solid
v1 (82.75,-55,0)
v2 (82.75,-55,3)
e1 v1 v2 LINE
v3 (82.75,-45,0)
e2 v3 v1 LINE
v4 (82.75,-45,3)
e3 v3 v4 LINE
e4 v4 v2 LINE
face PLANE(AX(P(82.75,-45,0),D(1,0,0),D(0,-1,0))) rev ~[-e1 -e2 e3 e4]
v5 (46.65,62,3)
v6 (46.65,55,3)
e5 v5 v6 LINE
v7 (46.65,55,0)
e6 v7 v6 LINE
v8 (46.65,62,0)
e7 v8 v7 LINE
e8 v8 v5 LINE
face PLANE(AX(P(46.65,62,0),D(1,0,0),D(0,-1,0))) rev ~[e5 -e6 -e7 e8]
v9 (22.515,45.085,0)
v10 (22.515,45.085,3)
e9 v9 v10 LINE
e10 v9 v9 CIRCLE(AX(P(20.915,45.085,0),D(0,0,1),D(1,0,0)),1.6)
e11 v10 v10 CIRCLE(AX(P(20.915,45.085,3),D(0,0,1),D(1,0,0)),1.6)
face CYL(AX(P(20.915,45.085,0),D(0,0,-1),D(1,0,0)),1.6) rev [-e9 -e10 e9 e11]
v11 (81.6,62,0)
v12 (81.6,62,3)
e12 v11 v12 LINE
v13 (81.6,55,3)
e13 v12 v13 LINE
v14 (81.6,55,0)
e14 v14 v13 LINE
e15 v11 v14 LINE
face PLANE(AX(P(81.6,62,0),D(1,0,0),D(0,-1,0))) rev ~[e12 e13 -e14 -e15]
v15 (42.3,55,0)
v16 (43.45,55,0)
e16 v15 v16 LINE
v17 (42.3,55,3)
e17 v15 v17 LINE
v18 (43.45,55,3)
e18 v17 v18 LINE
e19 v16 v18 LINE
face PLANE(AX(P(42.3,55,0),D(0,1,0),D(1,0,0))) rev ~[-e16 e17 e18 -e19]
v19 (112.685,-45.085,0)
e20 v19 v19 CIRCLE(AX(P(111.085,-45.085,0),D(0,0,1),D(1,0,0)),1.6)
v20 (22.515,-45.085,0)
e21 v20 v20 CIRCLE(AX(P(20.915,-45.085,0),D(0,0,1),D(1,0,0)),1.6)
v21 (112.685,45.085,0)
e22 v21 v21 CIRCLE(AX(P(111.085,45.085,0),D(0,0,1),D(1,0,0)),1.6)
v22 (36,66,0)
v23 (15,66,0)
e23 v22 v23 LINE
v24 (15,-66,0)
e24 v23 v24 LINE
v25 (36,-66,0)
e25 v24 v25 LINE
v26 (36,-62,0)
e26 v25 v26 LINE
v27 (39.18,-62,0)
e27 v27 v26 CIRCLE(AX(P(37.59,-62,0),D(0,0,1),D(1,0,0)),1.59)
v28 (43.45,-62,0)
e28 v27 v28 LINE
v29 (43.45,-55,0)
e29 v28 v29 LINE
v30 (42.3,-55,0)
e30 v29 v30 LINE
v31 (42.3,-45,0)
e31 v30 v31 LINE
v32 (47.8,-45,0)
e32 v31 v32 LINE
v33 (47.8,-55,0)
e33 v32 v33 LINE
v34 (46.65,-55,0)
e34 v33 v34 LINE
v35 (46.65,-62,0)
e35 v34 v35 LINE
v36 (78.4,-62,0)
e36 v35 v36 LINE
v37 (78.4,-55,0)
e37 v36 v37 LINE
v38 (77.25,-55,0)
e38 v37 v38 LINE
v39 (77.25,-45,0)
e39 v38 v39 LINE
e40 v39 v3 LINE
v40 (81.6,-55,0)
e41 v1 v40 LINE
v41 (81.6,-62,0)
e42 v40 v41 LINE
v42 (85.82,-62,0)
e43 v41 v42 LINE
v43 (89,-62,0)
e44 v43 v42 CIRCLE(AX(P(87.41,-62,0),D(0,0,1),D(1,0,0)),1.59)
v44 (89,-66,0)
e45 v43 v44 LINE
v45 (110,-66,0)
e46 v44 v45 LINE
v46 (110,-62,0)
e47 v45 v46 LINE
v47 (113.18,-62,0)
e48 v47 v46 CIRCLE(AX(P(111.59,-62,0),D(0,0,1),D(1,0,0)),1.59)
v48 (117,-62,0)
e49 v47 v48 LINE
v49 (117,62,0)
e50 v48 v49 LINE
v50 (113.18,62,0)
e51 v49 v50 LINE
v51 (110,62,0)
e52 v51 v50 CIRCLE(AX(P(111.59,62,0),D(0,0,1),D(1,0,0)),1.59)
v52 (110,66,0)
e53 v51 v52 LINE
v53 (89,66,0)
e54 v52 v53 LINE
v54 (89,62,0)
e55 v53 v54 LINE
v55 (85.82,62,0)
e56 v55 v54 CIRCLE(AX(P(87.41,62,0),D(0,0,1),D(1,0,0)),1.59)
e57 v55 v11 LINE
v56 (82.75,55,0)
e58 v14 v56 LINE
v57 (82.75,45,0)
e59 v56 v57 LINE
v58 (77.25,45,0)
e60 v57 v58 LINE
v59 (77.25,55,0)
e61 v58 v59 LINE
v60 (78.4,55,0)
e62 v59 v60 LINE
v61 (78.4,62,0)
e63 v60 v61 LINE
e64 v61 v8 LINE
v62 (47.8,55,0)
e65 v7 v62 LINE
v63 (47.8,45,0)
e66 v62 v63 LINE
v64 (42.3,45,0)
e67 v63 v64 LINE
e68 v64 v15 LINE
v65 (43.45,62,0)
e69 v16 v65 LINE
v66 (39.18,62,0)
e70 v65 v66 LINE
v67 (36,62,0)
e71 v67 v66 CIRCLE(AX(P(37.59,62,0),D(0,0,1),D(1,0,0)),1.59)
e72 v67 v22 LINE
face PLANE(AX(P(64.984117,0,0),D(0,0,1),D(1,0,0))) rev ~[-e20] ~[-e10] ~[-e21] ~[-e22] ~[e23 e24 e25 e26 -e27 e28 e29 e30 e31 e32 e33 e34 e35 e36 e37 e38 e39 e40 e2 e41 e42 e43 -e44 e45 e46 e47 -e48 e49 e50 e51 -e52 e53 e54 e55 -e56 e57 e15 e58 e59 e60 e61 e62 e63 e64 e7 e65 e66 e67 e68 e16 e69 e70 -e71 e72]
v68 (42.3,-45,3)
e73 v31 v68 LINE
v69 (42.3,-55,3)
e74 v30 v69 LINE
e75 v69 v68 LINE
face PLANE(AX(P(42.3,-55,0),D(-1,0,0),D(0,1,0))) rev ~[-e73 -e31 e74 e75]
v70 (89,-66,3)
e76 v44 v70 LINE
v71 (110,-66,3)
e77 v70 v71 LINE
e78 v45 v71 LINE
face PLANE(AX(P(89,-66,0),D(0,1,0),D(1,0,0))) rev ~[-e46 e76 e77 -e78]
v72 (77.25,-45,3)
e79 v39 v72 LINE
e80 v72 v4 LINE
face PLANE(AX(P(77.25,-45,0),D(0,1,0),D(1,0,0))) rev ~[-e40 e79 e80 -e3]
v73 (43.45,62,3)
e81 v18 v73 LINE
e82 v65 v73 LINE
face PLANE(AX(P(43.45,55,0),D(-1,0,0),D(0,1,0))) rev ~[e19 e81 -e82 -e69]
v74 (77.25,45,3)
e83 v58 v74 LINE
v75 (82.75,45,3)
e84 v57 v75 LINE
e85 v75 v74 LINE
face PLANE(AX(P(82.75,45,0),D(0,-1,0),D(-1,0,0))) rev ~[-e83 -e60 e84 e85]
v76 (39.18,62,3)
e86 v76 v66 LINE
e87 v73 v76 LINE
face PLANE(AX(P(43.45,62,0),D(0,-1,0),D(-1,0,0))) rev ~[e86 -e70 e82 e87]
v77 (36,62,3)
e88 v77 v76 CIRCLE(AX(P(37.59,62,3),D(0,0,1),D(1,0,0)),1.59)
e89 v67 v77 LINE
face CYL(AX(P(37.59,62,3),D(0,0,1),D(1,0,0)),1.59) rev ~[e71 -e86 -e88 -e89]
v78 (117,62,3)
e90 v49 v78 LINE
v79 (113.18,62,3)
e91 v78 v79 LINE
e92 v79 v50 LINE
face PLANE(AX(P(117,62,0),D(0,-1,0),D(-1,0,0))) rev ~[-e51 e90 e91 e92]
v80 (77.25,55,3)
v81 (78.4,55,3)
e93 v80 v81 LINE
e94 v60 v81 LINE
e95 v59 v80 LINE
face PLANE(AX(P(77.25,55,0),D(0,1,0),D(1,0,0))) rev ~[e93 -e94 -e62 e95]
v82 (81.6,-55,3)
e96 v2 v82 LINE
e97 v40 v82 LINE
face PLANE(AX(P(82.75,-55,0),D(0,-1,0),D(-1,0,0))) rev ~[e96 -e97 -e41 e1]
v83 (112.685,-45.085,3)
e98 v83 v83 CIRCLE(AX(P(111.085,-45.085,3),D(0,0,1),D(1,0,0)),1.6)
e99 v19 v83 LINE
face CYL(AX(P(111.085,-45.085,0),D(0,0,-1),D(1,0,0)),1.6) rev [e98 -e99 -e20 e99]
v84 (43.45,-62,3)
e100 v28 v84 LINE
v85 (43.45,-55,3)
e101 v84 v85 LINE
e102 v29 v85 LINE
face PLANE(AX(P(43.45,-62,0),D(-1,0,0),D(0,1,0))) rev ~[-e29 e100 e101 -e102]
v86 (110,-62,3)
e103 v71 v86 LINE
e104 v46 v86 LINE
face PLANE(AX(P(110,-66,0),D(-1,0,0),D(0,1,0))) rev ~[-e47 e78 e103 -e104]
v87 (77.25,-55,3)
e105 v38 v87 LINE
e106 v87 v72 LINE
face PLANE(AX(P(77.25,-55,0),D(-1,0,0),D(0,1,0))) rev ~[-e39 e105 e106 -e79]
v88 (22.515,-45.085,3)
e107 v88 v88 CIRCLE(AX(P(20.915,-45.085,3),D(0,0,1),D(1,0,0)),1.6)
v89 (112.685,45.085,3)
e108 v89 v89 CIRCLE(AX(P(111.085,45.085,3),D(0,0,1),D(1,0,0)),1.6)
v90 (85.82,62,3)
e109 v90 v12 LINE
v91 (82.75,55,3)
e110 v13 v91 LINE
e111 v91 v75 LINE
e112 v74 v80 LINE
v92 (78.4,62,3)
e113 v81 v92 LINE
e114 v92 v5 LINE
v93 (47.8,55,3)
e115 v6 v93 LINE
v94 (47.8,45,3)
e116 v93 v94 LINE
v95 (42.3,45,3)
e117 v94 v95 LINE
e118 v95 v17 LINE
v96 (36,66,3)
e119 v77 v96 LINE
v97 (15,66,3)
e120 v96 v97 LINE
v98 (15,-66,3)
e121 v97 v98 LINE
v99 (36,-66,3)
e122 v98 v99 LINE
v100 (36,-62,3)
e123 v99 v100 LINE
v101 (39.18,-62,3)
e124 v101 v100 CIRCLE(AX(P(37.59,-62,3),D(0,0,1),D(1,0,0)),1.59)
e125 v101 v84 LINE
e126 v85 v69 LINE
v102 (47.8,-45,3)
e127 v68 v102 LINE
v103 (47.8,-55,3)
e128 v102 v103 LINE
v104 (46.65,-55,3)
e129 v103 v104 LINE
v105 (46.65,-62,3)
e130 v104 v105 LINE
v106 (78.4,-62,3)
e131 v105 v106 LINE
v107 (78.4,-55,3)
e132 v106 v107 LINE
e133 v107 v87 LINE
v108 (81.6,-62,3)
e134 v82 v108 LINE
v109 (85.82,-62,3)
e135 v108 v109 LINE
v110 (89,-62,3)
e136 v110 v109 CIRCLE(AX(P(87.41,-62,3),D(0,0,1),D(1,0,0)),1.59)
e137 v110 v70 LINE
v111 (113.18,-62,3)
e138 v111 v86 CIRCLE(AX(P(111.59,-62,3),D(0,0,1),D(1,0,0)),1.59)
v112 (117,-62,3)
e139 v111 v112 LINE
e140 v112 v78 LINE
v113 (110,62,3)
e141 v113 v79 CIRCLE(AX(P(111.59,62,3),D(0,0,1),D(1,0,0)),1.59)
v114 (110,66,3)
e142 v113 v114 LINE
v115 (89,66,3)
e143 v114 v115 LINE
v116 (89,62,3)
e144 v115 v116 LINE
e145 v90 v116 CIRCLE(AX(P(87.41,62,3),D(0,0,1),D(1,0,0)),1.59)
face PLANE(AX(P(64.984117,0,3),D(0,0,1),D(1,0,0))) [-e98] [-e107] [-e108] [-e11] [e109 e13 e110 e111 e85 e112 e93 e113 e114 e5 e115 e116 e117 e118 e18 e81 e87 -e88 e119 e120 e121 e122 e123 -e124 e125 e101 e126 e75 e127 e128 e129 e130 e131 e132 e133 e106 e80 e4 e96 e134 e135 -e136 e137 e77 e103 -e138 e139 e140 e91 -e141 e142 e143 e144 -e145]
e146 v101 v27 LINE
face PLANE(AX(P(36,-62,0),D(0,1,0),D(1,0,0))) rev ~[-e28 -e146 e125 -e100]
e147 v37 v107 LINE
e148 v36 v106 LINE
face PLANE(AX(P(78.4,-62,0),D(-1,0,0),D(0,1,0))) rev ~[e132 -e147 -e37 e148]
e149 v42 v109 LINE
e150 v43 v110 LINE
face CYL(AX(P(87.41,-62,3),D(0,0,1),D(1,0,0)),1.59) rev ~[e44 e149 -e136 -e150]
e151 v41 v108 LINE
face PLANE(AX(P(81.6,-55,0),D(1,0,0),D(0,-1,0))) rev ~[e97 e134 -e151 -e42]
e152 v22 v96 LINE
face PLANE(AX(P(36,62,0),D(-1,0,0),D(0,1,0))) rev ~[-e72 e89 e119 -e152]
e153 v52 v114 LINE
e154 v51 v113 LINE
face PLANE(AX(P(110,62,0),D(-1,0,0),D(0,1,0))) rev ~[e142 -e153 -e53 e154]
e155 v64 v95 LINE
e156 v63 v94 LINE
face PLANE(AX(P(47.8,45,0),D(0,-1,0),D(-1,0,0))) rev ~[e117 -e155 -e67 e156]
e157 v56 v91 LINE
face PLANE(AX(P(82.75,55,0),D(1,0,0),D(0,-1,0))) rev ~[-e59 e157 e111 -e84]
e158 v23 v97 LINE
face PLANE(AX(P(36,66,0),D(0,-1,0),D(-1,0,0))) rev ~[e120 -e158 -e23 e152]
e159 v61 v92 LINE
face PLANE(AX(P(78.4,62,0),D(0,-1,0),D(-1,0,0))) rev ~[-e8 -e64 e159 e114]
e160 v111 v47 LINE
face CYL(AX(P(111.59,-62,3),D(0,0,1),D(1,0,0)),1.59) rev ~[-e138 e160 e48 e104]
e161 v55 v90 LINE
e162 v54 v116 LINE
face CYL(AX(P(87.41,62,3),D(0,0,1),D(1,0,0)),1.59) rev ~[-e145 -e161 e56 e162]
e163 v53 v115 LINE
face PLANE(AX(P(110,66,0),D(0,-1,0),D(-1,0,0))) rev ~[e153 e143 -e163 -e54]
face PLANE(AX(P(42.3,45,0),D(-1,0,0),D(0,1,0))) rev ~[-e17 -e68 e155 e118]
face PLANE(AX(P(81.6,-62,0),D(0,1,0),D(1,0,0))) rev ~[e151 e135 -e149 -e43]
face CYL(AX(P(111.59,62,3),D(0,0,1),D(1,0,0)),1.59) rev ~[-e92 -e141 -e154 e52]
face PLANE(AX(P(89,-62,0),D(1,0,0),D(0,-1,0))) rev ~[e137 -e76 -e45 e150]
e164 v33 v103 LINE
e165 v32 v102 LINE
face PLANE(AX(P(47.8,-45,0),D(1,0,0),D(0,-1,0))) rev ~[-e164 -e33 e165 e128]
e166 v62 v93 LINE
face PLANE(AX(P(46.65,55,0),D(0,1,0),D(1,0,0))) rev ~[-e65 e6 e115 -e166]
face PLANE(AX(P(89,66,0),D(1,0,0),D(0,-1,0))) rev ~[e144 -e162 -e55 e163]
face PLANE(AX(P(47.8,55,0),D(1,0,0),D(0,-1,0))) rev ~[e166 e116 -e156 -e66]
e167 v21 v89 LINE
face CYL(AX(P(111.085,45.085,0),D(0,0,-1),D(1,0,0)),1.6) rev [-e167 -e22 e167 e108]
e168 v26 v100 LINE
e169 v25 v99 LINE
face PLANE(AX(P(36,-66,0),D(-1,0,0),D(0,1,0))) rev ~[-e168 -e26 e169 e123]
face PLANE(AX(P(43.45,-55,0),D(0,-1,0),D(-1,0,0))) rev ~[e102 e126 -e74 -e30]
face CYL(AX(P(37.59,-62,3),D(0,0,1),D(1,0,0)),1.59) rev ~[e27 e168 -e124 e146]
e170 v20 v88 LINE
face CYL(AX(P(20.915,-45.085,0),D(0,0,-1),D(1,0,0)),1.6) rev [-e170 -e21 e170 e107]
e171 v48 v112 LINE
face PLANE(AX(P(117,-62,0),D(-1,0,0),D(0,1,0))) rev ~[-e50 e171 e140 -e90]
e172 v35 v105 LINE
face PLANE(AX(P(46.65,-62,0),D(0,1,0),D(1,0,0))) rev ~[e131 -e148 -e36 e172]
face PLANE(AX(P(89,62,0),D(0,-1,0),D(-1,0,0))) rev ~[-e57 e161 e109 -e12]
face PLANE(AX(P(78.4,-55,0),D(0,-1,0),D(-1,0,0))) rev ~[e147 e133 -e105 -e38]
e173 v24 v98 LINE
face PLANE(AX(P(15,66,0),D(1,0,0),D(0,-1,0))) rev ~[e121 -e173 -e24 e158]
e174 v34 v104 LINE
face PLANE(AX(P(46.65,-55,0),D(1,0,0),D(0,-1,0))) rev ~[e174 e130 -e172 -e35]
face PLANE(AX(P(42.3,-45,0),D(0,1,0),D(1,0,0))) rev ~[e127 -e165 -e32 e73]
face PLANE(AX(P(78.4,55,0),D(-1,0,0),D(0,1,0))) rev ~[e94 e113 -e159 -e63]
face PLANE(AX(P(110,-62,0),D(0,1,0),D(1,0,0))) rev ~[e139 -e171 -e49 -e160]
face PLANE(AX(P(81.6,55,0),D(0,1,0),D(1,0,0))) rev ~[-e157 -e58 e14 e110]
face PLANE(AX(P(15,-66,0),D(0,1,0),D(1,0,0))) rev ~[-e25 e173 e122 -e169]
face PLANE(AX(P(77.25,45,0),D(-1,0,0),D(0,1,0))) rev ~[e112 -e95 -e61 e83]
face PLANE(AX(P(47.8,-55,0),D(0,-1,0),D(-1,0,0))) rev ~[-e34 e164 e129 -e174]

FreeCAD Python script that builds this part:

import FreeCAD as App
import Part
import Sketcher
from FreeCAD import Vector


def add_polygon(sketch, points):
    """Adds a closed chain of lines whose ends are joined by coincident constraints."""
    first, n = sketch.GeometryCount, len(points)
    for a, b in zip(points, points[1:] + points[:1]):
        sketch.addGeometry(Part.LineSegment(App.Vector(*a, 0), App.Vector(*b, 0)), False)
    for i in range(n):
        sketch.addConstraint(Sketcher.Constraint("Coincident", first + i, 2, first + (i + 1) % n, 1))

doc = App.newDocument("Part")
body = doc.addObject("PartDesign::Body", "Body")

# Sketch on XY plane
sketch1 = body.newObject("Sketcher::SketchObject", "Sketch")
sketch1.AttachmentSupport = (doc.getObject("XY_Plane"), [""])
sketch1.MapMode = "FlatFace"
add_polygon(sketch1, [(110, -66), (110, -62), (117, -62), (117, 62), (110, 62), (110, 66), (89, 66), (89, 62), (81.6, 62), (81.6, 55), (82.8, 55), (82.8, 45), (77.2, 45), (77.2, 55), (78.4, 55), (78.4, 62), (46.6, 62), (46.6, 55), (47.8, 55), (47.8, 45), (42.3, 45), (42.3, 55), (43.5, 55), (43.5, 62), (36, 62), (36, 66), (15, 66), (15, -66), (36, -66), (36, -62), (43.5, -62), (43.5, -55), (42.3, -55), (42.3, -45), (47.8, -45), (47.8, -55), (46.6, -55), (46.6, -62), (78.4, -62), (78.4, -55), (77.2, -55), (77.2, -45), (82.8, -45), (82.8, -55), (81.6, -55), (81.6, -62), (89, -62), (89, -66)])  # lines 0-47
sketch1.addGeometry(Part.Circle(Vector(20.9, -45.1, 0), Vector(0, 0, 1), 1.6), False)  # 48
sketch1.addGeometry(Part.Circle(Vector(111.1, -45.1, 0), Vector(0, 0, 1), 1.6), False)  # 49
sketch1.addGeometry(Part.Circle(Vector(20.9, 45.1, 0), Vector(0, 0, 1), 1.6), False)  # 50
sketch1.addGeometry(Part.Circle(Vector(111.1, 45.1, 0), Vector(0, 0, 1), 1.6), False)  # 51
sketch1.addConstraint(Sketcher.Constraint("Vertical", 0))
sketch1.addConstraint(Sketcher.Constraint("Horizontal", 1))
sketch1.addConstraint(Sketcher.Constraint("Vertical", 2))
sketch1.addConstraint(Sketcher.Constraint("Horizontal", 3))
sketch1.addConstraint(Sketcher.Constraint("Vertical", 4))
sketch1.addConstraint(Sketcher.Constraint("Horizontal", 5))
sketch1.addConstraint(Sketcher.Constraint("Vertical", 6))
sketch1.addConstraint(Sketcher.Constraint("Horizontal", 7))
sketch1.addConstraint(Sketcher.Constraint("Vertical", 8))
sketch1.addConstraint(Sketcher.Constraint("Horizontal", 9))
sketch1.addConstraint(Sketcher.Constraint("Vertical", 10))
sketch1.addConstraint(Sketcher.Constraint("Horizontal", 11))
sketch1.addConstraint(Sketcher.Constraint("Vertical", 12))
sketch1.addConstraint(Sketcher.Constraint("Horizontal", 13))
sketch1.addConstraint(Sketcher.Constraint("Vertical", 14))
sketch1.addConstraint(Sketcher.Constraint("Horizontal", 15))
sketch1.addConstraint(Sketcher.Constraint("Vertical", 16))
sketch1.addConstraint(Sketcher.Constraint("Horizontal", 17))
sketch1.addConstraint(Sketcher.Constraint("Vertical", 18))
sketch1.addConstraint(Sketcher.Constraint("Horizontal", 19))
sketch1.addConstraint(Sketcher.Constraint("Vertical", 20))
sketch1.addConstraint(Sketcher.Constraint("Horizontal", 21))
sketch1.addConstraint(Sketcher.Constraint("Vertical", 22))
sketch1.addConstraint(Sketcher.Constraint("Horizontal", 23))
sketch1.addConstraint(Sketcher.Constraint("Vertical", 24))
sketch1.addConstraint(Sketcher.Constraint("Horizontal", 25))
sketch1.addConstraint(Sketcher.Constraint("Vertical", 26))
sketch1.addConstraint(Sketcher.Constraint("Horizontal", 27))
sketch1.addConstraint(Sketcher.Constraint("Vertical", 28))
sketch1.addConstraint(Sketcher.Constraint("Horizontal", 29))
sketch1.addConstraint(Sketcher.Constraint("Vertical", 30))
sketch1.addConstraint(Sketcher.Constraint("Horizontal", 31))
sketch1.addConstraint(Sketcher.Constraint("Vertical", 32))
sketch1.addConstraint(Sketcher.Constraint("Horizontal", 33))
sketch1.addConstraint(Sketcher.Constraint("Vertical", 34))
sketch1.addConstraint(Sketcher.Constraint("Horizontal", 35))
sketch1.addConstraint(Sketcher.Constraint("Vertical", 36))
sketch1.addConstraint(Sketcher.Constraint("Horizontal", 37))
sketch1.addConstraint(Sketcher.Constraint("Vertical", 38))
sketch1.addConstraint(Sketcher.Constraint("Horizontal", 39))
sketch1.addConstraint(Sketcher.Constraint("Vertical", 40))
sketch1.addConstraint(Sketcher.Constraint("Horizontal", 41))
sketch1.addConstraint(Sketcher.Constraint("Vertical", 42))
sketch1.addConstraint(Sketcher.Constraint("Horizontal", 43))
sketch1.addConstraint(Sketcher.Constraint("Vertical", 44))
sketch1.addConstraint(Sketcher.Constraint("Horizontal", 45))
sketch1.addConstraint(Sketcher.Constraint("Vertical", 46))
sketch1.addConstraint(Sketcher.Constraint("Horizontal", 47))
sketch1.addConstraint(Sketcher.Constraint("Equal", 48, 49))
sketch1.addConstraint(Sketcher.Constraint("Equal", 49, 50))
sketch1.addConstraint(Sketcher.Constraint("Equal", 50, 51))
sketch1.addConstraint(Sketcher.Constraint("Symmetric", 48, 3, 50, 3, -1))
sketch1.addConstraint(Sketcher.Constraint("Symmetric", 49, 3, 51, 3, -1))
sketch1.addConstraint(Sketcher.Constraint("Symmetric", 0, 2, 3, 2, -1))
sketch1.addConstraint(Sketcher.Constraint("Symmetric", 24, 2, 27, 2, -1))
sketch1.addConstraint(Sketcher.Constraint("Symmetric", 22, 2, 29, 2, -1))
sketch1.addConstraint(Sketcher.Constraint("Symmetric", 20, 2, 31, 2, -1))
sketch1.addConstraint(Sketcher.Constraint("Symmetric", 18, 2, 33, 2, -1))
sketch1.addConstraint(Sketcher.Constraint("Symmetric", 16, 2, 35, 2, -1))
sketch1.addConstraint(Sketcher.Constraint("Symmetric", 14, 2, 37, 2, -1))
sketch1.addConstraint(Sketcher.Constraint("Symmetric", 12, 2, 39, 2, -1))
sketch1.addConstraint(Sketcher.Constraint("Symmetric", 10, 2, 41, 2, -1))
sketch1.addConstraint(Sketcher.Constraint("Symmetric", 8, 2, 43, 2, -1))
sketch1.addConstraint(Sketcher.Constraint("Symmetric", 6, 2, 45, 2, -1))
sketch1.addConstraint(Sketcher.Constraint("Horizontal", 48, 3, 49, 3))
sketch1.addConstraint(Sketcher.Constraint("Horizontal", 3, 2, 6, 2))
sketch1.addConstraint(Sketcher.Constraint("Horizontal", 9, 2, 12, 2))
sketch1.addConstraint(Sketcher.Constraint("Horizontal", 7, 2, 14, 2))
sketch1.addConstraint(Sketcher.Constraint("Horizontal", 13, 2, 16, 2))
sketch1.addConstraint(Sketcher.Constraint("Horizontal", 11, 2, 18, 2))
sketch1.addConstraint(Sketcher.Constraint("Horizontal", 17, 2, 20, 2))
sketch1.addConstraint(Sketcher.Constraint("Horizontal", 15, 2, 22, 2))
sketch1.addConstraint(Sketcher.Constraint("Horizontal", 5, 2, 24, 2))
sketch1.addConstraint(Sketcher.Constraint("Horizontal", 27, 2, 46, 2))
sketch1.addConstraint(Sketcher.Constraint("Equal", 9, 13))
sketch1.addConstraint(Sketcher.Constraint("Equal", 13, 17))
sketch1.addConstraint(Sketcher.Constraint("Equal", 11, 19))
sketch1.addConstraint(Sketcher.Constraint("Equal", 17, 21))
sketch1.addConstraint(Sketcher.Constraint("Equal", 5, 25))
sketch1.addConstraint(Sketcher.Constraint("Equal", 3, 8))
sketch1.addConstraint(Sketcher.Constraint("Diameter", 48, 3.2))
sketch1.addConstraint(Sketcher.Constraint("DistanceX", 1, 1, 1, 2, 7.0))
sketch1.addConstraint(Sketcher.Constraint("DistanceX", 5, 2, 5, 1, 21.0))
sketch1.addConstraint(Sketcher.Constraint("DistanceY", 0, 1, 0, 2, 4.0))
sketch1.addConstraint(Sketcher.Constraint("DistanceY", 2, 1, 2, 2, 124.0))
sketch1.addConstraint(Sketcher.Constraint("DistanceY", 10, 2, 10, 1, 10.0))
sketch1.addConstraint(Sketcher.Constraint("DistanceX", 7, 2, 7, 1, 7.4))
sketch1.addConstraint(Sketcher.Constraint("DistanceX", 11, 2, 11, 1, 5.5))
sketch1.addConstraint(Sketcher.Constraint("DistanceX", -1, 1, 0, 2, 110.0))
sketch1.addConstraint(Sketcher.Constraint("DistanceX", -1, 1, 23, 2, 36.0))
sketch1.addConstraint(Sketcher.Constraint("DistanceX", 9, 1, 9, 2, 1.15))
sketch1.addConstraint(Sketcher.Constraint("DistanceX", 15, 2, 15, 1, 31.75))
sketch1.addConstraint(Sketcher.Constraint("DistanceX", 48, 3, 49, 3, 90.17))
sketch1.addConstraint(Sketcher.Constraint("DistanceY", 48, 3, 50, 3, 90.17))
sketch1.addConstraint(Sketcher.Constraint("DistanceX", -1, 1, 48, 3, 20.915))
pad1 = body.newObject("PartDesign::Pad", "Pad")
pad1.Profile = sketch1
pad1.Length = 3

# Sketch on XY plane
sketch2 = body.newObject("Sketcher::SketchObject", "Sketch001")
sketch2.AttachmentSupport = (doc.getObject("XY_Plane"), [""])
sketch2.MapMode = "FlatFace"
sketch2.AttachmentOffset = App.Placement(Vector(0, 0, 3), App.Rotation())
sketch2.addGeometry(Part.Circle(Vector(37.6, 62, 0), Vector(0, 0, 1), 1.6), False)
sketch2.addGeometry(Part.Circle(Vector(87.4, 62, 0), Vector(0, 0, 1), 1.6), False)
sketch2.addGeometry(Part.Circle(Vector(37.6, -62, 0), Vector(0, 0, 1), 1.6), False)
sketch2.addGeometry(Part.Circle(Vector(87.4, -62, 0), Vector(0, 0, 1), 1.6), False)
sketch2.addGeometry(Part.Circle(Vector(111.6, -62, 0), Vector(0, 0, 1), 1.6), False)
sketch2.addGeometry(Part.Circle(Vector(111.6, 62, 0), Vector(0, 0, 1), 1.6), False)
sketch2.addConstraint(Sketcher.Constraint("Equal", 0, 1))
sketch2.addConstraint(Sketcher.Constraint("Equal", 1, 2))
sketch2.addConstraint(Sketcher.Constraint("Equal", 2, 3))
sketch2.addConstraint(Sketcher.Constraint("Equal", 3, 4))
sketch2.addConstraint(Sketcher.Constraint("Equal", 4, 5))
sketch2.addConstraint(Sketcher.Constraint("Symmetric", 0, 3, 2, 3, -1))
sketch2.addConstraint(Sketcher.Constraint("Symmetric", 1, 3, 3, 3, -1))
sketch2.addConstraint(Sketcher.Constraint("Symmetric", 4, 3, 5, 3, -1))
sketch2.addConstraint(Sketcher.Constraint("Horizontal", 0, 3, 1, 3))
sketch2.addConstraint(Sketcher.Constraint("Horizontal", 3, 3, 4, 3))
sketch2.addConstraint(Sketcher.Constraint("Diameter", 0, 3.18))
sketch2.addConstraint(Sketcher.Constraint("DistanceY", -1, 1, 0, 3, 62.0))
sketch2.addConstraint(Sketcher.Constraint("DistanceX", 2, 3, 4, 3, 74.0))
sketch2.addConstraint(Sketcher.Constraint("DistanceX", -1, 1, 0, 3, 37.59))
sketch2.addConstraint(Sketcher.Constraint("DistanceX", -1, 1, 1, 3, 87.41))
pocket1 = body.newObject("PartDesign::Pocket", "Pocket")
pocket1.Profile = sketch2
pocket1.Type = "ThroughAll"

doc.recompute()
